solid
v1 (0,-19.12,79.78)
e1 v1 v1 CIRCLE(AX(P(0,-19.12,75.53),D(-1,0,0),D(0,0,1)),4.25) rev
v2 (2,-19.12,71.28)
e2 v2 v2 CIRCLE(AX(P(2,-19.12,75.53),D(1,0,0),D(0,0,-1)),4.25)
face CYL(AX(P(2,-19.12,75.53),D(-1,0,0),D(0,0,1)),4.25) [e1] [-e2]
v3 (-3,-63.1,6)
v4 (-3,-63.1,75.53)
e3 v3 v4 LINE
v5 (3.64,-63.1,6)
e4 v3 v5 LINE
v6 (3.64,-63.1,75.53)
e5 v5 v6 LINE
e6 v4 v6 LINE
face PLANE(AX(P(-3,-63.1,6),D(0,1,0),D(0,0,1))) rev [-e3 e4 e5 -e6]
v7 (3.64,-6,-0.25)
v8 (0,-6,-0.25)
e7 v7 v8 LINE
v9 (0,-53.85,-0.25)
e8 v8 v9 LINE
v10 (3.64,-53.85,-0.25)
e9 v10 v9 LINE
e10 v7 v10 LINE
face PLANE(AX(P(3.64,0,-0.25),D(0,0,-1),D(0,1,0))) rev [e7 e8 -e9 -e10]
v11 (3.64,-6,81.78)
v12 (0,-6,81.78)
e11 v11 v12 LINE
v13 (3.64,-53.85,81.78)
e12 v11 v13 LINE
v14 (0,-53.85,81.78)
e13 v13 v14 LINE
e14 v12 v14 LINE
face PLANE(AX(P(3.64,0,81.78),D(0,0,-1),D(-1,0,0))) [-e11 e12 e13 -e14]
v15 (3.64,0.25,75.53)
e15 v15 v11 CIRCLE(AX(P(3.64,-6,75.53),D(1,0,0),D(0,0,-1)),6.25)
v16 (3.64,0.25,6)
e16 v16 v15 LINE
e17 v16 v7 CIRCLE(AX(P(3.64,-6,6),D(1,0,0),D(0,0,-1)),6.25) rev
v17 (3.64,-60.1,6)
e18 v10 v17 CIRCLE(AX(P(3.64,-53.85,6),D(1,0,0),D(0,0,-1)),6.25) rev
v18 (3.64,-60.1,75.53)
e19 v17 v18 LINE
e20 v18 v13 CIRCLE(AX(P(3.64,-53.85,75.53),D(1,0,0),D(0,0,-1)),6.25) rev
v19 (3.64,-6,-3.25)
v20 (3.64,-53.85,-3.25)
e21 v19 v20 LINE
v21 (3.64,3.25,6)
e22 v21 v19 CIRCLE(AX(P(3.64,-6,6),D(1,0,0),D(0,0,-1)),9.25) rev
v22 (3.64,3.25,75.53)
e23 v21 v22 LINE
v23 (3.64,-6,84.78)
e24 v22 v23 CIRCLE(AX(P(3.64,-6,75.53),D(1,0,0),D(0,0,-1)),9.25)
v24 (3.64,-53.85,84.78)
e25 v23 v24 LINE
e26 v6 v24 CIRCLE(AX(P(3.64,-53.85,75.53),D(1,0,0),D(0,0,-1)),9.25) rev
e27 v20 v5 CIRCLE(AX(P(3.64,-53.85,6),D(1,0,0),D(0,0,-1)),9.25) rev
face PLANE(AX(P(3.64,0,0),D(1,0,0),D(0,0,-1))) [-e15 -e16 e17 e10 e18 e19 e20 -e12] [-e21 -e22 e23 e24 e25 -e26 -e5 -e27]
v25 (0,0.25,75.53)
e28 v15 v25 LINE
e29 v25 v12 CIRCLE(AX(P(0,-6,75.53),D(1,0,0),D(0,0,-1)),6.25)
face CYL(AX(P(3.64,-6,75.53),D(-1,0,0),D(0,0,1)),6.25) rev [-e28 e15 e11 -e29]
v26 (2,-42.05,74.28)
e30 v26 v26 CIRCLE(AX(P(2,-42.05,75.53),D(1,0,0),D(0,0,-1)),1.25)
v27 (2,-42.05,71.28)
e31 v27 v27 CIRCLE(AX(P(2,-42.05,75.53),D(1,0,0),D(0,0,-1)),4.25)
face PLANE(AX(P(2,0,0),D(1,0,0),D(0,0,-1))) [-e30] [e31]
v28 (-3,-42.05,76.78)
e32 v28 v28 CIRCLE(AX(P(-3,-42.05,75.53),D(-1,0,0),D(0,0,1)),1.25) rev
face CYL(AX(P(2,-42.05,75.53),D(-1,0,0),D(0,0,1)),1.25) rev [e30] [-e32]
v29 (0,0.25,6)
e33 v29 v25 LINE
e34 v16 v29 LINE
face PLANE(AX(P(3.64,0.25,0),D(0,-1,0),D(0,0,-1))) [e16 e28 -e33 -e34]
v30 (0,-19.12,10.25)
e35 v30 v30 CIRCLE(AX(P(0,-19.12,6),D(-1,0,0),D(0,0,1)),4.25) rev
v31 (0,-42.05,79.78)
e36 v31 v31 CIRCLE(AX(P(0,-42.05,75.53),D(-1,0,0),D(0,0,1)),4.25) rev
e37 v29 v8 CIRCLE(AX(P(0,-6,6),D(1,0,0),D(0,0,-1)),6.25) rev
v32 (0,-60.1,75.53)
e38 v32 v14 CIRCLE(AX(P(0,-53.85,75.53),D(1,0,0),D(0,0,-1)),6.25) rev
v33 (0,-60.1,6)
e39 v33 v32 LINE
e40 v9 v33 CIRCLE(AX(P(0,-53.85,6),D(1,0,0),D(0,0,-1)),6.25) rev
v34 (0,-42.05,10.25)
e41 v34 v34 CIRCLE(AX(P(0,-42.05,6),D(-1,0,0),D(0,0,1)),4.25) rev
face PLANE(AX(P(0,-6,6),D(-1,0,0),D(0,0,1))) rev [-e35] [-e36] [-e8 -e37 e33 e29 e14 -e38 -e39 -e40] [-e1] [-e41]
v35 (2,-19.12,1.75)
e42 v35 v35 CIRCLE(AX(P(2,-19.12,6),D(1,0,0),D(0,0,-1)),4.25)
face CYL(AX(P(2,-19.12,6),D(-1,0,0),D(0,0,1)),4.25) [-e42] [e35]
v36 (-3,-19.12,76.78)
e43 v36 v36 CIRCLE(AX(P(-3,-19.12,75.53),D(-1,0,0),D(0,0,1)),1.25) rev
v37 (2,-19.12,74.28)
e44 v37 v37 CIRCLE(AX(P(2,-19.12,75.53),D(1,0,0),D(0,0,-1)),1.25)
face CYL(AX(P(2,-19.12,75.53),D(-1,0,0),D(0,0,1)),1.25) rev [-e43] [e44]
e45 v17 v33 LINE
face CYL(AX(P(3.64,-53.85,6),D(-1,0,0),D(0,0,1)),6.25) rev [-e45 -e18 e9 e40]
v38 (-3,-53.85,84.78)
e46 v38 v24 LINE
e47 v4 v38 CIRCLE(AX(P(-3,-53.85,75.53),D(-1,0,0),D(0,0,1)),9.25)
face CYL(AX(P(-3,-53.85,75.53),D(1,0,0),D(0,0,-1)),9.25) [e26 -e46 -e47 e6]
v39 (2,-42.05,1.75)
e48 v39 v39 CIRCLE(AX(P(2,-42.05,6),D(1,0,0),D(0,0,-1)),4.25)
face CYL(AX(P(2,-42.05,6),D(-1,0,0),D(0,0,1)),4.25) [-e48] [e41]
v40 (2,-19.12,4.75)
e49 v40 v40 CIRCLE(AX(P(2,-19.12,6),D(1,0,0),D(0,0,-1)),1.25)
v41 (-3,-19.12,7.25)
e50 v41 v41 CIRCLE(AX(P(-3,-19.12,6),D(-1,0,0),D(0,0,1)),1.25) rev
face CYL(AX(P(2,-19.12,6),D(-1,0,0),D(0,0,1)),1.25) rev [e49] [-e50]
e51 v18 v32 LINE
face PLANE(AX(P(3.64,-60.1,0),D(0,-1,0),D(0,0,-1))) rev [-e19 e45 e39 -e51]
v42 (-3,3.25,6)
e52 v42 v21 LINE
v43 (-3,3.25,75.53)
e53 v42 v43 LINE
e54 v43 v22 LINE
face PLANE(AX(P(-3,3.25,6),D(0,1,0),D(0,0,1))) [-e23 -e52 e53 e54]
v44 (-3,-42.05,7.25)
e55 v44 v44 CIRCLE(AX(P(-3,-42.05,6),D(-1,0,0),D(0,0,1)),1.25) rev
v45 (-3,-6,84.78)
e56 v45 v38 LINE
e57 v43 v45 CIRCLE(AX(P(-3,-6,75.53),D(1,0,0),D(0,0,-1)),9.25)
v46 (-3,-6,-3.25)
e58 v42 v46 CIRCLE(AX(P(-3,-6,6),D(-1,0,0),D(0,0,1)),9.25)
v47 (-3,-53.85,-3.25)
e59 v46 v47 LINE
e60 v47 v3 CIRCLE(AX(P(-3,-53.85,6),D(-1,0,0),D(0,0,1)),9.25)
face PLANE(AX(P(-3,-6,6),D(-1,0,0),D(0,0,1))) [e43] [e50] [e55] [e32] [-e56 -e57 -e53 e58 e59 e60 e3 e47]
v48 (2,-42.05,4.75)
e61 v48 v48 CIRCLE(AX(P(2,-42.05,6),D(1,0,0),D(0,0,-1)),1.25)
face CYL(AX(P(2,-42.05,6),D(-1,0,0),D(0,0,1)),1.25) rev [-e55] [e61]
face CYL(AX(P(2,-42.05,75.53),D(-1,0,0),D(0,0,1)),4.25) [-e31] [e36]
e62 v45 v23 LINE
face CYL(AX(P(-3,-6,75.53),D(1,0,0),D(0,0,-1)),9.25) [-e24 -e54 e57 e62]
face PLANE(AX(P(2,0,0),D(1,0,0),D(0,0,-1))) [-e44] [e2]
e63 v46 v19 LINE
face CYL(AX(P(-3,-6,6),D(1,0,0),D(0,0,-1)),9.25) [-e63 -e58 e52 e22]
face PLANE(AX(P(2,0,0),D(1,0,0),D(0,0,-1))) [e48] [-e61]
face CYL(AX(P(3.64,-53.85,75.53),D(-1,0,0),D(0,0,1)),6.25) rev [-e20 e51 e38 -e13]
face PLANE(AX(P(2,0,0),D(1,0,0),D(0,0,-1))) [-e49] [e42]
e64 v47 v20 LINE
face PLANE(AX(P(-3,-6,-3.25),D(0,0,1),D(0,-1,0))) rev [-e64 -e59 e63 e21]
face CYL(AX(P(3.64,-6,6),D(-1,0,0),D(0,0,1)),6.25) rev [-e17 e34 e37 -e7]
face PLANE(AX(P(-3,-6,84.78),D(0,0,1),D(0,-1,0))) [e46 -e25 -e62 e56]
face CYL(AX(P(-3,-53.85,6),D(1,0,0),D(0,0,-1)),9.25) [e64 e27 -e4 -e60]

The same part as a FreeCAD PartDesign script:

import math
import FreeCAD as App
import Part
import Sketcher

V = App.Vector
Q = App.Units.Quantity

doc = App.newDocument("Part")
body = doc.addObject("PartDesign::Body", "Body")

# Sketch on YZ plane
sketch1 = doc.addObject("Sketcher::SketchObject", "Sketch")
body.addObject(sketch1)
sketch1.AttachmentSupport = (doc.YZ_Plane, [""])
sketch1.MapMode = "FlatFace"
sketch1.addGeometry([
    Part.LineSegment(V(3, 6, 0), V(3, 76, 0)),  # 0
    Part.ArcOfCircle(Part.Circle(V(-6, 76, 0), V(0, 0, 1), 9), math.radians(0), math.radians(90)),  # 1
    Part.LineSegment(V(-6, 85, 0), V(-54, 85, 0)),  # 2
    Part.ArcOfCircle(Part.Circle(V(-54, 76, 0), V(0, 0, 1), 9), math.radians(90), math.radians(180)),  # 3
    Part.LineSegment(V(-63, 76, 0), V(-63, 6, 0)),  # 4
    Part.ArcOfCircle(Part.Circle(V(-54, 6, 0), V(0, 0, 1), 9), math.radians(180), math.radians(270)),  # 5
    Part.LineSegment(V(-54, -3, 0), V(-6, -3, 0)),  # 6
    Part.ArcOfCircle(Part.Circle(V(-6, 6, 0), V(0, 0, 1), 9), math.radians(-90), math.radians(0)),  # 7
], False)
sketch1.addConstraint([
    Sketcher.Constraint("Tangent", 0, 2, 1, 1),
    Sketcher.Constraint("Tangent", 1, 2, 2, 1),
    Sketcher.Constraint("Tangent", 2, 2, 3, 1),
    Sketcher.Constraint("Tangent", 3, 2, 4, 1),
    Sketcher.Constraint("Tangent", 4, 2, 5, 1),
    Sketcher.Constraint("Tangent", 5, 2, 6, 1),
    Sketcher.Constraint("Tangent", 6, 2, 7, 1),
    Sketcher.Constraint("Tangent", 7, 2, 0, 1),
    Sketcher.Constraint("Vertical", 0),
    Sketcher.Constraint("Horizontal", 2),
    Sketcher.Constraint("Vertical", 4),
    Sketcher.Constraint("Horizontal", 6),
    Sketcher.Constraint("Equal", 1, 3),
    Sketcher.Constraint("Equal", 3, 5),
    Sketcher.Constraint("Equal", 5, 7),
    Sketcher.Constraint("Radius", 1, Q("9.25 mm")),
    Sketcher.Constraint("DistanceX", 1, 3, -1, 1, Q("6 mm")),
    Sketcher.Constraint("DistanceY", -1, 1, 5, 3, Q("6 mm")),
    Sketcher.Constraint("DistanceX", 2, 2, 2, 1, Q("47.85 mm")),
    Sketcher.Constraint("DistanceY", 0, 1, 0, 2, Q("69.53 mm")),
])
pad1 = doc.addObject("PartDesign::Pad", "Pad")
body.addObject(pad1)
pad1.Profile = sketch1
pad1.Length = 3
pad1.Reversed = True

# Sketch on YZ plane
sketch2 = doc.addObject("Sketcher::SketchObject", "Sketch001")
body.addObject(sketch2)
sketch2.AttachmentSupport = (doc.YZ_Plane, [""])
sketch2.MapMode = "FlatFace"
sketch2.addGeometry([
    Part.Circle(V(-19.1, 75.5, 0), V(0, 0, 1), 4.2),  # 0
    Part.Circle(V(-19.1, 75.5, 0), V(0, 0, 1), 1.2),  # 1
    Part.Circle(V(-19.1, 6, 0), V(0, 0, 1), 4.2),  # 2
    Part.Circle(V(-19.1, 6, 0), V(0, 0, 1), 1.2),  # 3
    Part.Circle(V(-42, 6, 0), V(0, 0, 1), 4.2),  # 4
    Part.Circle(V(-42, 6, 0), V(0, 0, 1), 1.2),  # 5
    Part.Circle(V(-42, 75.5, 0), V(0, 0, 1), 4.2),  # 6
    Part.Circle(V(-42, 75.5, 0), V(0, 0, 1), 1.2),  # 7
], False)
sketch2.addConstraint([
    Sketcher.Constraint("Coincident", 1, 3, 0, 3),
    Sketcher.Constraint("Coincident", 3, 3, 2, 3),
    Sketcher.Constraint("Coincident", 5, 3, 4, 3),
    Sketcher.Constraint("Coincident", 7, 3, 6, 3),
    Sketcher.Constraint("Equal", 0, 2),
    Sketcher.Constraint("Equal", 1, 3),
    Sketcher.Constraint("Equal", 2, 4),
    Sketcher.Constraint("Equal", 3, 5),
    Sketcher.Constraint("Equal", 4, 6),
    Sketcher.Constraint("Equal", 5, 7),
    Sketcher.Constraint("Horizontal", 3, 3, 4, 3),
    Sketcher.Constraint("Horizontal", 1, 3, 6, 3),
    Sketcher.Constraint("Vertical", 1, 3, 2, 3),
    Sketcher.Constraint("Vertical", 5, 3, 6, 3),
    Sketcher.Constraint("Diameter", 0, Q("8.5 mm")),
    Sketcher.Constraint("Diameter", 1, Q("2.5 mm")),
    Sketcher.Constraint("DistanceY", -1, 1, 2, 3, Q("6 mm")),
    Sketcher.Constraint("DistanceX", 0, 3, -1, 1, Q("19.12 mm")),
    Sketcher.Constraint("DistanceY", -1, 1, 0, 3, Q("75.53 mm")),
    Sketcher.Constraint("DistanceX", 4, 3, -1, 1, Q("42.05 mm")),
])
pad2 = doc.addObject("PartDesign::Pad", "Pad001")
body.addObject(pad2)
pad2.Profile = sketch2
pad2.Length = 2

# Sketch on YZ plane
sketch3 = doc.addObject("Sketcher::SketchObject", "Sketch002")
body.addObject(sketch3)
sketch3.AttachmentSupport = (doc.YZ_Plane, [""])
sketch3.MapMode = "FlatFace"
sketch3.AttachmentOffset = App.Placement(V(0, 0, 3.64), App.Rotation())
sketch3.addGeometry([
    Part.ArcOfCircle(Part.Circle(V(-6, 6, 0), V(0, 0, 1), 9), math.radians(-90), math.radians(0)),  # 0
    Part.LineSegment(V(3, 6, 0), V(3, 76, 0)),  # 1
    Part.ArcOfCircle(Part.Circle(V(-6, 76, 0), V(0, 0, 1), 9), math.radians(0), math.radians(90)),  # 2
    Part.LineSegment(V(-6, 85, 0), V(-54, 85, 0)),  # 3
    Part.ArcOfCircle(Part.Circle(V(-54, 76, 0), V(0, 0, 1), 9), math.radians(90), math.radians(180)),  # 4
    Part.LineSegment(V(-63, 76, 0), V(-63, 6, 0)),  # 5
    Part.ArcOfCircle(Part.Circle(V(-54, 6, 0), V(0, 0, 1), 9), math.radians(180), math.radians(270)),  # 6
    Part.LineSegment(V(-54, -3, 0), V(-6, -3, 0)),  # 7
    Part.ArcOfCircle(Part.Circle(V(-6, 6, 0), V(0, 0, 1), 6), math.radians(-90), math.radians(0)),  # 8
    Part.LineSegment(V(-6, 0, 0), V(-54, 0, 0)),  # 9
    Part.ArcOfCircle(Part.Circle(V(-54, 6, 0), V(0, 0, 1), 6), math.radians(-180), math.radians(-90)),  # 10
    Part.LineSegment(V(-60, 6, 0), V(-60, 76, 0)),  # 11
    Part.ArcOfCircle(Part.Circle(V(-54, 76, 0), V(0, 0, 1), 6), math.radians(90), math.radians(180)),  # 12
    Part.LineSegment(V(-54, 82, 0), V(-6, 82, 0)),  # 13
    Part.ArcOfCircle(Part.Circle(V(-6, 76, 0), V(0, 0, 1), 6), math.radians(0), math.radians(90)),  # 14
    Part.LineSegment(V(0, 76, 0), V(0, 6, 0)),  # 15
], False)
sketch3.addConstraint([
    Sketcher.Constraint("Tangent", 0, 2, 1, 1),
    Sketcher.Constraint("Tangent", 1, 2, 2, 1),
    Sketcher.Constraint("Tangent", 2, 2, 3, 1),
    Sketcher.Constraint("Tangent", 3, 2, 4, 1),
    Sketcher.Constraint("Tangent", 4, 2, 5, 1),
    Sketcher.Constraint("Tangent", 5, 2, 6, 1),
    Sketcher.Constraint("Tangent", 6, 2, 7, 1),
    Sketcher.Constraint("Tangent", 7, 2, 0, 1),
    Sketcher.Constraint("Tangent", 8, 1, 9, 1),
    Sketcher.Constraint("Tangent", 9, 2, 10, 2),
    Sketcher.Constraint("Tangent", 10, 1, 11, 1),
    Sketcher.Constraint("Tangent", 11, 2, 12, 2),
    Sketcher.Constraint("Tangent", 12, 1, 13, 1),
    Sketcher.Constraint("Tangent", 13, 2, 14, 2),
    Sketcher.Constraint("Tangent", 14, 1, 15, 1),
    Sketcher.Constraint("Tangent", 15, 2, 8, 2),
    Sketcher.Constraint("Vertical", 1),
    Sketcher.Constraint("Horizontal", 3),
    Sketcher.Constraint("Vertical", 5),
    Sketcher.Constraint("Horizontal", 7),
    Sketcher.Constraint("Horizontal", 9),
    Sketcher.Constraint("Vertical", 11),
    Sketcher.Constraint("Horizontal", 13),
    Sketcher.Constraint("Vertical", 15),
    Sketcher.Constraint("Coincident", 8, 3, 0, 3),
    Sketcher.Constraint("Coincident", 10, 3, 6, 3),
    Sketcher.Constraint("Coincident", 12, 3, 4, 3),
    Sketcher.Constraint("Equal", 0, 2),
    Sketcher.Constraint("Equal", 2, 4),
    Sketcher.Constraint("Equal", 4, 6),
    Sketcher.Constraint("Equal", 12, 14),
    Sketcher.Constraint("Radius", 0, Q("9.25 mm")),
    Sketcher.Constraint("Radius", 8, Q("6.25 mm")),
    Sketcher.Constraint("DistanceX", 0, 3, -1, 1, Q("6 mm")),
    Sketcher.Constraint("DistanceY", -1, 1, 0, 3, Q("6 mm")),
    Sketcher.Constraint("DistanceX", 3, 2, 3, 1, Q("47.85 mm")),
    Sketcher.Constraint("DistanceY", 1, 1, 1, 2, Q("69.53 mm")),
])
pad3 = doc.addObject("PartDesign::Pad", "Pad002")
body.addObject(pad3)
pad3.Profile = sketch3
pad3.Length = 3.64
pad3.Reversed = True

# Sketch on YZ plane
sketch4 = doc.addObject("Sketcher::SketchObject", "Sketch003")
body.addObject(sketch4)
sketch4.AttachmentSupport = (doc.YZ_Plane, [""])
sketch4.MapMode = "FlatFace"
sketch4.addGeometry(Part.Circle(V(-19.1, 6, 0), V(0, 0, 1), 1.2), False)
sketch4.addConstraint([
    Sketcher.Constraint("Diameter", 0, Q("2.5 mm")),
    Sketcher.Constraint("DistanceY", -1, 1, 0, 3, Q("6 mm")),
    Sketcher.Constraint("DistanceX", 0, 3, -1, 1, Q("19.12 mm")),
])
pocket1 = doc.addObject("PartDesign::Pocket", "Pocket")
body.addObject(pocket1)
pocket1.Profile = sketch4
pocket1.Type = "UpToFirst"

# Sketch on YZ plane
sketch5 = doc.addObject("Sketcher::SketchObject", "Sketch004")
body.addObject(sketch5)
sketch5.AttachmentSupport = (doc.YZ_Plane, [""])
sketch5.MapMode = "FlatFace"
sketch5.addGeometry(Part.Circle(V(-42, 6, 0), V(0, 0, 1), 1.2), False)
sketch5.addConstraint([
    Sketcher.Constraint("Diameter", 0, Q("2.5 mm")),
    Sketcher.Constraint("DistanceY", -1, 1, 0, 3, Q("6 mm")),
    Sketcher.Constraint("DistanceX", 0, 3, -1, 1, Q("42.05 mm")),
])
pocket2 = doc.addObject("PartDesign::Pocket", "Pocket001")
body.addObject(pocket2)
pocket2.Profile = sketch5
pocket2.Type = "UpToFirst"

# Sketch on YZ plane
sketch6 = doc.addObject("Sketcher::SketchObject", "Sketch005")
body.addObject(sketch6)
sketch6.AttachmentSupport = (doc.YZ_Plane, [""])
sketch6.MapMode = "FlatFace"
sketch6.addGeometry(Part.Circle(V(-19.1, 75.5, 0), V(0, 0, 1), 1.2), False)
sketch6.addConstraint([
    Sketcher.Constraint("Diameter", 0, Q("2.5 mm")),
    Sketcher.Constraint("DistanceX", 0, 3, -1, 1, Q("19.12 mm")),
    Sketcher.Constraint("DistanceY", -1, 1, 0, 3, Q("75.53 mm")),
])
pocket3 = doc.addObject("PartDesign::Pocket", "Pocket002")
body.addObject(pocket3)
pocket3.Profile = sketch6
pocket3.Type = "UpToFirst"

# Sketch on YZ plane
sketch7 = doc.addObject("Sketcher::SketchObject", "Sketch006")
body.addObject(sketch7)
sketch7.AttachmentSupport = (doc.YZ_Plane, [""])
sketch7.MapMode = "FlatFace"
sketch7.addGeometry(Part.Circle(V(-42, 75.5, 0), V(0, 0, 1), 1.2), False)
sketch7.addConstraint([
    Sketcher.Constraint("Diameter", 0, Q("2.5 mm")),
    Sketcher.Constraint("DistanceX", 0, 3, -1, 1, Q("42.05 mm")),
    Sketcher.Constraint("DistanceY", -1, 1, 0, 3, Q("75.53 mm")),
])
pocket4 = doc.addObject("PartDesign::Pocket", "Pocket003")
body.addObject(pocket4)
pocket4.Profile = sketch7
pocket4.Type = "UpToFirst"

doc.recompute()
